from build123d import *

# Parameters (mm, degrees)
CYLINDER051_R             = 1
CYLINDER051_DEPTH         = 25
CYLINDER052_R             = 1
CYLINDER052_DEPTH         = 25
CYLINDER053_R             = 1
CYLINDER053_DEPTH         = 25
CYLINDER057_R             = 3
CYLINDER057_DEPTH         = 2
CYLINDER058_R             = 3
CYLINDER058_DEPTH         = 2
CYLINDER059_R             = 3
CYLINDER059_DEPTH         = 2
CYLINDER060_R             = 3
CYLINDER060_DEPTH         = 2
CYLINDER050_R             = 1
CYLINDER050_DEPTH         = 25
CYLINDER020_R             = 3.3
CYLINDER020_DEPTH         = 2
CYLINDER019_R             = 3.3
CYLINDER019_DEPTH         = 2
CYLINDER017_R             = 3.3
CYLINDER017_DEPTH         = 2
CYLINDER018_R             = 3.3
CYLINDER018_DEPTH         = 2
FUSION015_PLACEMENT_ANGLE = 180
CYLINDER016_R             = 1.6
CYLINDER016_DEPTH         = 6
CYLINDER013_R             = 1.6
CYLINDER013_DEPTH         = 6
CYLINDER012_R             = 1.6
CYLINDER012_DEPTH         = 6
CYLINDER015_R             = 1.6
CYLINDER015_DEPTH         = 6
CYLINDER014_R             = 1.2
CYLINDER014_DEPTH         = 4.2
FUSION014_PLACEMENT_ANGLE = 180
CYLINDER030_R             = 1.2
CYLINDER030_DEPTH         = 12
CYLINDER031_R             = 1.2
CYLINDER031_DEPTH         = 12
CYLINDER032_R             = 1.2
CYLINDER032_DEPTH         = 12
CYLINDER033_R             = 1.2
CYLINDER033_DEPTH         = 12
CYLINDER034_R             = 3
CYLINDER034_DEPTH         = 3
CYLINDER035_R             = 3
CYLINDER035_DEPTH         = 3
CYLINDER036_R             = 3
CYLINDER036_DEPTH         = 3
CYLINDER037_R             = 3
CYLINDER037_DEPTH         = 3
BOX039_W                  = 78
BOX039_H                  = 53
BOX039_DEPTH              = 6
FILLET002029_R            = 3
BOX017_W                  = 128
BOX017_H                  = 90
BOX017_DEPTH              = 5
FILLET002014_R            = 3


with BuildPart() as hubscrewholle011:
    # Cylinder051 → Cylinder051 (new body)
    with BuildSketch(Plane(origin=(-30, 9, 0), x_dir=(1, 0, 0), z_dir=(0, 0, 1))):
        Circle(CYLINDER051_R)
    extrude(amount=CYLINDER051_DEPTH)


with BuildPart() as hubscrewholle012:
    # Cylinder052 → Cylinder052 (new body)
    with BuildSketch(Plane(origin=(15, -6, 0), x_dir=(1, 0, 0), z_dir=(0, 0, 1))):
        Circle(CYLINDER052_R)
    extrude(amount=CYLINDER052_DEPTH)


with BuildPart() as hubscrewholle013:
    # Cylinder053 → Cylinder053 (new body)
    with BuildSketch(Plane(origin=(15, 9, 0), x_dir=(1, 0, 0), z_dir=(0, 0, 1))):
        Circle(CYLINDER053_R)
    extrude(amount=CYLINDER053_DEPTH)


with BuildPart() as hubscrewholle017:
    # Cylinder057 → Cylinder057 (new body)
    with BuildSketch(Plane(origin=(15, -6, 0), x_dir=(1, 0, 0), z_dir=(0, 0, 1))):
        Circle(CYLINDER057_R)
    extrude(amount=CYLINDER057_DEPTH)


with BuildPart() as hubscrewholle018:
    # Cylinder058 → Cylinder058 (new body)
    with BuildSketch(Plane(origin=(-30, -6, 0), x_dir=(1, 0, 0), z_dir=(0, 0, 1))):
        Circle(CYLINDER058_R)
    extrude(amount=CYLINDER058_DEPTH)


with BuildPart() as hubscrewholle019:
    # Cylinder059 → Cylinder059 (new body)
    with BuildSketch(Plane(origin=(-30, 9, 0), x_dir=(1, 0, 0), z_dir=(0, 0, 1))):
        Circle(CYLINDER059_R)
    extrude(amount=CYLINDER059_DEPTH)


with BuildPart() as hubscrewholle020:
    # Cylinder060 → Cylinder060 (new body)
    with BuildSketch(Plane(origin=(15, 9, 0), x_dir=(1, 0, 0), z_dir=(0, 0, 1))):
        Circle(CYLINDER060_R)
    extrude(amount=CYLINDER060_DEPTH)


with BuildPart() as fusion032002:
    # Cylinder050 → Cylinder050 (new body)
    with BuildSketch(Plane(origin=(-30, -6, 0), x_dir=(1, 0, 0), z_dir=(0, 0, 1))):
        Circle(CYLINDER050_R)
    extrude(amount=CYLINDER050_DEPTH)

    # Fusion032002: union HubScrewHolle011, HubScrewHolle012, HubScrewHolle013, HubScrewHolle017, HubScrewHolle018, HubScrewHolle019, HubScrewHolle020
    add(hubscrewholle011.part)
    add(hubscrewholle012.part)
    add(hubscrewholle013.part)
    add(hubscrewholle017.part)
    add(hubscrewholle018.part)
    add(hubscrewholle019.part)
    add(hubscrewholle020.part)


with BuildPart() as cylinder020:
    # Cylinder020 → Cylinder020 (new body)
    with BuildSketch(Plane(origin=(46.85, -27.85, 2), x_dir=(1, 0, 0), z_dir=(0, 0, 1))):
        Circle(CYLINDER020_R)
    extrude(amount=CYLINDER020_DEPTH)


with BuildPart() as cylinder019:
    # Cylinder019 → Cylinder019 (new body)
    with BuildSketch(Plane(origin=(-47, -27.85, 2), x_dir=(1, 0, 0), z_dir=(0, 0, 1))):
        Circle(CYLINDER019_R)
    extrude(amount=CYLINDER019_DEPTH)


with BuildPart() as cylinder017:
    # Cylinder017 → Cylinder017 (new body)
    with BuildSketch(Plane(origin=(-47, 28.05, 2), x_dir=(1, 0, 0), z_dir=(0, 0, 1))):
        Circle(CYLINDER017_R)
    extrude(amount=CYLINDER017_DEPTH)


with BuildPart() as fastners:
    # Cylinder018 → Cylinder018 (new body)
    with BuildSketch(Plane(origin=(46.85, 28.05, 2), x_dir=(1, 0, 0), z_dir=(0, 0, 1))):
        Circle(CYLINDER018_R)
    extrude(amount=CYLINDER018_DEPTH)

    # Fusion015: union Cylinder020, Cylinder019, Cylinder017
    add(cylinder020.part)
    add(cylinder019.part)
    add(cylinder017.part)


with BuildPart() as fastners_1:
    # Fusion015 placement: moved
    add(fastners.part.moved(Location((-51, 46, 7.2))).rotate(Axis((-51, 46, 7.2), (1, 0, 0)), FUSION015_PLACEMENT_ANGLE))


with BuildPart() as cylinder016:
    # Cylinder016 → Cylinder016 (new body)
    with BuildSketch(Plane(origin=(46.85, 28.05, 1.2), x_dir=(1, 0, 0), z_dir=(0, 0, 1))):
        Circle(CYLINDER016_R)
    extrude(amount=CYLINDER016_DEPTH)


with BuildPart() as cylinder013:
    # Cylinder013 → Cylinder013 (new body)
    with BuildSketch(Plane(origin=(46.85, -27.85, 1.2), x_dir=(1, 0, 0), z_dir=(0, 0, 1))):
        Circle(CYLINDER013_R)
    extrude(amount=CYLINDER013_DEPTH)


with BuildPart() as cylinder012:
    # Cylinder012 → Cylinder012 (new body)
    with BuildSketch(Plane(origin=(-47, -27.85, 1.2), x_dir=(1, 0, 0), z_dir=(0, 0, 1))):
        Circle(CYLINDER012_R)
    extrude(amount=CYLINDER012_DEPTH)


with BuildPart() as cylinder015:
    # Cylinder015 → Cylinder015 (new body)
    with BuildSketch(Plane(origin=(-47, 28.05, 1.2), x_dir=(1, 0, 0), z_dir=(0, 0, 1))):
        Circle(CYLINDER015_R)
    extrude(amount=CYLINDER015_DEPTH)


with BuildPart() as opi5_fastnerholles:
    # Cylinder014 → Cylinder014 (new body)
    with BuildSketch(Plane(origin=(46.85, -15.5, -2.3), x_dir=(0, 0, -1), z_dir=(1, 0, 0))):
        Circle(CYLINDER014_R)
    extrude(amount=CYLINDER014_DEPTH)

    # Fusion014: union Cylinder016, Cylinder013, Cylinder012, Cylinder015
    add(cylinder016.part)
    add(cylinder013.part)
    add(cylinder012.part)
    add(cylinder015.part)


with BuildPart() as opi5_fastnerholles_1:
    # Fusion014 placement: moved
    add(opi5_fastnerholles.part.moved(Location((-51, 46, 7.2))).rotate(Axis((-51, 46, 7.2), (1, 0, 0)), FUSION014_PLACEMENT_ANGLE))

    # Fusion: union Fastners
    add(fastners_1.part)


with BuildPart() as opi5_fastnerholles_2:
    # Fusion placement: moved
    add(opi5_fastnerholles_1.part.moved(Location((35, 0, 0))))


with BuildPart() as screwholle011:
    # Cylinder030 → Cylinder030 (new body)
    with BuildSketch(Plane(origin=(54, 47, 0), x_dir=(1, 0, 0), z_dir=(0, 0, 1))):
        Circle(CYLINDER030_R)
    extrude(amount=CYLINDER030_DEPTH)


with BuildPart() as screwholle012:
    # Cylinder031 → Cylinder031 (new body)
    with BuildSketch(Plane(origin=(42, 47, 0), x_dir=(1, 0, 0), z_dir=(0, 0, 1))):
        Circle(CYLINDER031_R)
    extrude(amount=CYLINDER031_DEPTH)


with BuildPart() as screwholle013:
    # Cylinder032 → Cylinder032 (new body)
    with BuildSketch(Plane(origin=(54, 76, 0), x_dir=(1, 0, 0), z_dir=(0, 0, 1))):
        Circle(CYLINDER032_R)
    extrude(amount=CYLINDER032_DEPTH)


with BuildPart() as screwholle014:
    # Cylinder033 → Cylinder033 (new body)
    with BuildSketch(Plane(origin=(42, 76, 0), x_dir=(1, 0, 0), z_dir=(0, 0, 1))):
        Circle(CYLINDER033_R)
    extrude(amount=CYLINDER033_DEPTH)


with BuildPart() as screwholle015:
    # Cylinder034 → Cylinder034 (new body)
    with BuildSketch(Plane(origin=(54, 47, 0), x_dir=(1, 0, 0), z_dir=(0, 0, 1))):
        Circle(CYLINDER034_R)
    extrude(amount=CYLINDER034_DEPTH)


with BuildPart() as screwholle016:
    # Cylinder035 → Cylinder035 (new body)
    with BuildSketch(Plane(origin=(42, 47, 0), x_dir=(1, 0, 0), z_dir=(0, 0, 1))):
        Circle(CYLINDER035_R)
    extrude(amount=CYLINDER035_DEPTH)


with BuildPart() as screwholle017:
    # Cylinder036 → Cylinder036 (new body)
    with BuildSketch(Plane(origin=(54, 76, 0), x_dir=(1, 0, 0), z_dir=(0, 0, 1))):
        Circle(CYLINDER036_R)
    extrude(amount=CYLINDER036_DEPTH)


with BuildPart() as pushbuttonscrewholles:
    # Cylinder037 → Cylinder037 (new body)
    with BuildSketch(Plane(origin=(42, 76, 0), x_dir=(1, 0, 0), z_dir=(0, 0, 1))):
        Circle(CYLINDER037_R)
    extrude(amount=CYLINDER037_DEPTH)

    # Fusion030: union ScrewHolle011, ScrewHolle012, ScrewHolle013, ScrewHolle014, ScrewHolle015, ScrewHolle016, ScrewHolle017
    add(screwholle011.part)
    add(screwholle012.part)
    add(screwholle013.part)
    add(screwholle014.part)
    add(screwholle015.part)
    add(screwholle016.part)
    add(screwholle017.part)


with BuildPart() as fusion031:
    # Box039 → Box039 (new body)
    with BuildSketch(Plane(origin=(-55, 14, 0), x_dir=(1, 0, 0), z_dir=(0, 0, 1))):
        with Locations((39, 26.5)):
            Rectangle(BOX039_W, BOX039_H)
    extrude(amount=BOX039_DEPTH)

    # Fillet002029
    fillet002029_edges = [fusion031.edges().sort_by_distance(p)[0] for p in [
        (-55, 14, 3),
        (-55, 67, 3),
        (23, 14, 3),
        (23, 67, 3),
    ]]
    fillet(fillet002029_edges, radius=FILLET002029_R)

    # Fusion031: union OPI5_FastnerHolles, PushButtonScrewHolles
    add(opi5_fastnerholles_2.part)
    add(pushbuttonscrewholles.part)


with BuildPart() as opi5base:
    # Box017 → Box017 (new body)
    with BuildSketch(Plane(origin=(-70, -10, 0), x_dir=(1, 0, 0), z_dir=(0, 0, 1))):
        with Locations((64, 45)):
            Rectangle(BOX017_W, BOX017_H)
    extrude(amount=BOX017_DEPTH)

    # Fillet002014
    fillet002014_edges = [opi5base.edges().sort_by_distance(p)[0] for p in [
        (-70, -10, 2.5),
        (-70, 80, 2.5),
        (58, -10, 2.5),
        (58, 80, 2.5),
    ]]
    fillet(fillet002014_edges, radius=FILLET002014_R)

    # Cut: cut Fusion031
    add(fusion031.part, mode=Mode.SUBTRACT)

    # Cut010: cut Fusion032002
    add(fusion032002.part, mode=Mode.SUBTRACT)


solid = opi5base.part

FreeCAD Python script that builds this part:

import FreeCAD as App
import Part
import Sketcher
from FreeCAD import Vector
Q = App.Units.Quantity


def edges_at(feature, points):
    """Names of the edges that pass closest to the given points."""
    edges = feature.Shape.Edges
    near = lambda p: min(range(len(edges)), key=lambda i: edges[i].distToShape(Part.Vertex(*p))[0])
    return sorted({f"Edge{near(p) + 1}" for p in points})


def add_polygon(sketch, points):
    """Adds a closed chain of lines whose ends are joined by coincident constraints."""
    first, n = sketch.GeometryCount, len(points)
    for a, b in zip(points, points[1:] + points[:1]):
        sketch.addGeometry(Part.LineSegment(App.Vector(*a, 0), App.Vector(*b, 0)), False)
    for i in range(n):
        sketch.addConstraint(Sketcher.Constraint("Coincident", first + i, 2, first + (i + 1) % n, 1))

doc = App.newDocument("Part")
body = doc.addObject("PartDesign::Body", "Body")

sketch1 = doc.addObject("Sketcher::SketchObject", "Sketch")
body.addObject(sketch1)
sketch1.AttachmentSupport = (doc.XY_Plane, [""])
sketch1.MapMode = "FlatFace"
sketch1.addGeometry(Part.Circle(Vector(-30, 9, 0), Vector(0, 0, 1), 1), False)
sketch1.addConstraint(Sketcher.Constraint("Diameter", 0, Q("2 mm")))
sketch1.addConstraint(Sketcher.Constraint("DistanceX", 0, 3, -1, 1, Q("30 mm")))
sketch1.addConstraint(Sketcher.Constraint("DistanceY", -1, 1, 0, 3, Q("9 mm")))
pad1 = doc.addObject("PartDesign::Pad", "Pad")
body.addObject(pad1)
pad1.Profile = sketch1
pad1.Length = 25
body2 = doc.addObject("PartDesign::Body", "Body001")

sketch2 = doc.addObject("Sketcher::SketchObject", "Sketch001")
body2.addObject(sketch2)
sketch2.AttachmentSupport = (doc.getObject("XY_Plane001"), [""])
sketch2.MapMode = "FlatFace"
sketch2.addGeometry(Part.Circle(Vector(15, -6, 0), Vector(0, 0, 1), 1), False)
sketch2.addConstraint(Sketcher.Constraint("Diameter", 0, Q("2 mm")))
sketch2.addConstraint(Sketcher.Constraint("DistanceX", -1, 1, 0, 3, Q("15 mm")))
sketch2.addConstraint(Sketcher.Constraint("DistanceY", 0, 3, -1, 1, Q("6 mm")))
pad2 = doc.addObject("PartDesign::Pad", "Pad001")
body2.addObject(pad2)
pad2.Profile = sketch2
pad2.Length = 25
body3 = doc.addObject("PartDesign::Body", "Body002")

sketch3 = doc.addObject("Sketcher::SketchObject", "Sketch002")
body3.addObject(sketch3)
sketch3.AttachmentSupport = (doc.getObject("XY_Plane002"), [""])
sketch3.MapMode = "FlatFace"
sketch3.addGeometry(Part.Circle(Vector(15, 9, 0), Vector(0, 0, 1), 1), False)
sketch3.addConstraint(Sketcher.Constraint("Diameter", 0, Q("2 mm")))
sketch3.addConstraint(Sketcher.Constraint("DistanceX", -1, 1, 0, 3, Q("15 mm")))
sketch3.addConstraint(Sketcher.Constraint("DistanceY", -1, 1, 0, 3, Q("9 mm")))
pad3 = doc.addObject("PartDesign::Pad", "Pad002")
body3.addObject(pad3)
pad3.Profile = sketch3
pad3.Length = 25
body4 = doc.addObject("PartDesign::Body", "Body003")

sketch4 = doc.addObject("Sketcher::SketchObject", "Sketch003")
body4.addObject(sketch4)
sketch4.AttachmentSupport = (doc.getObject("XY_Plane003"), [""])
sketch4.MapMode = "FlatFace"
sketch4.addGeometry(Part.Circle(Vector(15, -6, 0), Vector(0, 0, 1), 3), False)
sketch4.addConstraint(Sketcher.Constraint("Diameter", 0, Q("6 mm")))
sketch4.addConstraint(Sketcher.Constraint("DistanceX", -1, 1, 0, 3, Q("15 mm")))
sketch4.addConstraint(Sketcher.Constraint("DistanceY", 0, 3, -1, 1, Q("6 mm")))
pad4 = doc.addObject("PartDesign::Pad", "Pad003")
body4.addObject(pad4)
pad4.Profile = sketch4
pad4.Length = 2
body5 = doc.addObject("PartDesign::Body", "Body004")

sketch5 = doc.addObject("Sketcher::SketchObject", "Sketch004")
body5.addObject(sketch5)
sketch5.AttachmentSupport = (doc.getObject("XY_Plane004"), [""])
sketch5.MapMode = "FlatFace"
sketch5.addGeometry(Part.Circle(Vector(-30, -6, 0), Vector(0, 0, 1), 3), False)
sketch5.addConstraint(Sketcher.Constraint("Diameter", 0, Q("6 mm")))
sketch5.addConstraint(Sketcher.Constraint("DistanceX", 0, 3, -1, 1, Q("30 mm")))
sketch5.addConstraint(Sketcher.Constraint("DistanceY", 0, 3, -1, 1, Q("6 mm")))
pad5 = doc.addObject("PartDesign::Pad", "Pad004")
body5.addObject(pad5)
pad5.Profile = sketch5
pad5.Length = 2
body6 = doc.addObject("PartDesign::Body", "Body005")

sketch6 = doc.addObject("Sketcher::SketchObject", "Sketch005")
body6.addObject(sketch6)
sketch6.AttachmentSupport = (doc.getObject("XY_Plane005"), [""])
sketch6.MapMode = "FlatFace"
sketch6.addGeometry(Part.Circle(Vector(-30, 9, 0), Vector(0, 0, 1), 3), False)
sketch6.addConstraint(Sketcher.Constraint("Diameter", 0, Q("6 mm")))
sketch6.addConstraint(Sketcher.Constraint("DistanceX", 0, 3, -1, 1, Q("30 mm")))
sketch6.addConstraint(Sketcher.Constraint("DistanceY", -1, 1, 0, 3, Q("9 mm")))
pad6 = doc.addObject("PartDesign::Pad", "Pad005")
body6.addObject(pad6)
pad6.Profile = sketch6
pad6.Length = 2
body7 = doc.addObject("PartDesign::Body", "Body006")

sketch7 = doc.addObject("Sketcher::SketchObject", "Sketch006")
body7.addObject(sketch7)
sketch7.AttachmentSupport = (doc.getObject("XY_Plane006"), [""])
sketch7.MapMode = "FlatFace"
sketch7.addGeometry(Part.Circle(Vector(15, 9, 0), Vector(0, 0, 1), 3), False)
sketch7.addConstraint(Sketcher.Constraint("Diameter", 0, Q("6 mm")))
sketch7.addConstraint(Sketcher.Constraint("DistanceX", -1, 1, 0, 3, Q("15 mm")))
sketch7.addConstraint(Sketcher.Constraint("DistanceY", -1, 1, 0, 3, Q("9 mm")))
pad7 = doc.addObject("PartDesign::Pad", "Pad006")
body7.addObject(pad7)
pad7.Profile = sketch7
pad7.Length = 2
body8 = doc.addObject("PartDesign::Body", "Body007")
body8.AllowCompound = True

sketch8 = doc.addObject("Sketcher::SketchObject", "Sketch007")
body8.addObject(sketch8)
sketch8.AttachmentSupport = (doc.getObject("XY_Plane007"), [""])
sketch8.MapMode = "FlatFace"
sketch8.addGeometry(Part.Circle(Vector(-30, -6, 0), Vector(0, 0, 1), 1), False)
sketch8.addConstraint(Sketcher.Constraint("Diameter", 0, Q("2 mm")))
sketch8.addConstraint(Sketcher.Constraint("DistanceX", 0, 3, -1, 1, Q("30 mm")))
sketch8.addConstraint(Sketcher.Constraint("DistanceY", 0, 3, -1, 1, Q("6 mm")))
pad8 = doc.addObject("PartDesign::Pad", "Pad007")
body8.addObject(pad8)
pad8.Profile = sketch8
pad8.Length = 25
doc.recompute()

boolean = doc.addObject("PartDesign::Boolean", "Boolean")
body8.addObject(boolean)
boolean.Type = "Fuse"
boolean.addObjects([body])
doc.recompute()

boolean2 = doc.addObject("PartDesign::Boolean", "Boolean001")
body8.addObject(boolean2)
boolean2.Type = "Fuse"
boolean2.addObjects([body2])
doc.recompute()

boolean3 = doc.addObject("PartDesign::Boolean", "Boolean002")
body8.addObject(boolean3)
boolean3.Type = "Fuse"
boolean3.addObjects([body3])
doc.recompute()

boolean4 = doc.addObject("PartDesign::Boolean", "Boolean003")
body8.addObject(boolean4)
boolean4.Type = "Fuse"
boolean4.addObjects([body4])
doc.recompute()

boolean5 = doc.addObject("PartDesign::Boolean", "Boolean004")
body8.addObject(boolean5)
boolean5.Type = "Fuse"
boolean5.addObjects([body5])
doc.recompute()

boolean6 = doc.addObject("PartDesign::Boolean", "Boolean005")
body8.addObject(boolean6)
boolean6.Type = "Fuse"
boolean6.addObjects([body6])
doc.recompute()

boolean7 = doc.addObject("PartDesign::Boolean", "Boolean006")
body8.addObject(boolean7)
boolean7.Type = "Fuse"
boolean7.addObjects([body7])
body9 = doc.addObject("PartDesign::Body", "Body008")

sketch9 = doc.addObject("Sketcher::SketchObject", "Sketch008")
body9.addObject(sketch9)
sketch9.AttachmentSupport = (doc.getObject("XY_Plane008"), [""])
sketch9.MapMode = "FlatFace"
sketch9.AttachmentOffset = App.Placement(Vector(0, 0, 2), App.Rotation())
sketch9.addGeometry(Part.Circle(Vector(46.9, -27.9, 0), Vector(0, 0, 1), 3.3), False)
sketch9.addConstraint(Sketcher.Constraint("Diameter", 0, Q("6.6 mm")))
sketch9.addConstraint(Sketcher.Constraint("DistanceX", -1, 1, 0, 3, Q("46.85 mm")))
sketch9.addConstraint(Sketcher.Constraint("DistanceY", 0, 3, -1, 1, Q("27.85 mm")))
pad9 = doc.addObject("PartDesign::Pad", "Pad008")
body9.addObject(pad9)
pad9.Profile = sketch9
pad9.Length = 2
body10 = doc.addObject("PartDesign::Body", "Body009")

sketch10 = doc.addObject("Sketcher::SketchObject", "Sketch009")
body10.addObject(sketch10)
sketch10.AttachmentSupport = (doc.getObject("XY_Plane009"), [""])
sketch10.MapMode = "FlatFace"
sketch10.AttachmentOffset = App.Placement(Vector(0, 0, 2), App.Rotation())
sketch10.addGeometry(Part.Circle(Vector(-47, -27.9, 0), Vector(0, 0, 1), 3.3), False)
sketch10.addConstraint(Sketcher.Constraint("Diameter", 0, Q("6.6 mm")))
sketch10.addConstraint(Sketcher.Constraint("DistanceX", 0, 3, -1, 1, Q("47 mm")))
sketch10.addConstraint(Sketcher.Constraint("DistanceY", 0, 3, -1, 1, Q("27.85 mm")))
pad10 = doc.addObject("PartDesign::Pad", "Pad009")
body10.addObject(pad10)
pad10.Profile = sketch10
pad10.Length = 2
body11 = doc.addObject("PartDesign::Body", "Body010")

sketch11 = doc.addObject("Sketcher::SketchObject", "Sketch010")
body11.addObject(sketch11)
sketch11.AttachmentSupport = (doc.getObject("XY_Plane010"), [""])
sketch11.MapMode = "FlatFace"
sketch11.AttachmentOffset = App.Placement(Vector(0, 0, 2), App.Rotation())
sketch11.addGeometry(Part.Circle(Vector(-47, 28.1, 0), Vector(0, 0, 1), 3.3), False)
sketch11.addConstraint(Sketcher.Constraint("Diameter", 0, Q("6.6 mm")))
sketch11.addConstraint(Sketcher.Constraint("DistanceX", 0, 3, -1, 1, Q("47 mm")))
sketch11.addConstraint(Sketcher.Constraint("DistanceY", -1, 1, 0, 3, Q("28.05 mm")))
pad11 = doc.addObject("PartDesign::Pad", "Pad010")
body11.addObject(pad11)
pad11.Profile = sketch11
pad11.Length = 2
body12 = doc.addObject("PartDesign::Body", "Body011")
body12.AllowCompound = True

sketch12 = doc.addObject("Sketcher::SketchObject", "Sketch011")
body12.addObject(sketch12)
sketch12.AttachmentSupport = (doc.getObject("XY_Plane011"), [""])
sketch12.MapMode = "FlatFace"
sketch12.AttachmentOffset = App.Placement(Vector(0, 0, 2), App.Rotation())
sketch12.addGeometry(Part.Circle(Vector(46.9, 28.1, 0), Vector(0, 0, 1), 3.3), False)
sketch12.addConstraint(Sketcher.Constraint("Diameter", 0, Q("6.6 mm")))
sketch12.addConstraint(Sketcher.Constraint("DistanceX", -1, 1, 0, 3, Q("46.85 mm")))
sketch12.addConstraint(Sketcher.Constraint("DistanceY", -1, 1, 0, 3, Q("28.05 mm")))
pad12 = doc.addObject("PartDesign::Pad", "Pad011")
body12.addObject(pad12)
pad12.Profile = sketch12
pad12.Length = 2
doc.recompute()

boolean8 = doc.addObject("PartDesign::Boolean", "Boolean007")
body12.addObject(boolean8)
boolean8.Type = "Fuse"
boolean8.addObjects([body9])
doc.recompute()

boolean9 = doc.addObject("PartDesign::Boolean", "Boolean008")
body12.addObject(boolean9)
boolean9.Type = "Fuse"
boolean9.addObjects([body10])
doc.recompute()

boolean10 = doc.addObject("PartDesign::Boolean", "Boolean009")
body12.addObject(boolean10)
boolean10.Type = "Fuse"
boolean10.addObjects([body11])
body13 = doc.addObject("PartDesign::Body", "Body012")
body13.AllowCompound = True
doc.recompute()

body12.Placement = App.Placement(Vector(-51, 46, 7.2), App.Rotation(Vector(1, 0, 0), 180))
boolean11 = doc.addObject("PartDesign::Boolean", "Boolean010")
body13.addObject(boolean11)
boolean11.Type = "Fuse"
boolean11.addObjects([body12])
body14 = doc.addObject("PartDesign::Body", "Body013")

sketch13 = doc.addObject("Sketcher::SketchObject", "Sketch012")
body14.addObject(sketch13)
sketch13.AttachmentSupport = (doc.getObject("XY_Plane013"), [""])
sketch13.MapMode = "FlatFace"
sketch13.AttachmentOffset = App.Placement(Vector(0, 0, 1.2), App.Rotation())
sketch13.addGeometry(Part.Circle(Vector(46.9, 28.1, 0), Vector(0, 0, 1), 1.6), False)
sketch13.addConstraint(Sketcher.Constraint("Diameter", 0, Q("3.2 mm")))
sketch13.addConstraint(Sketcher.Constraint("DistanceX", -1, 1, 0, 3, Q("46.85 mm")))
sketch13.addConstraint(Sketcher.Constraint("DistanceY", -1, 1, 0, 3, Q("28.05 mm")))
pad13 = doc.addObject("PartDesign::Pad", "Pad012")
body14.addObject(pad13)
pad13.Profile = sketch13
pad13.Length = 6
body15 = doc.addObject("PartDesign::Body", "Body014")

sketch14 = doc.addObject("Sketcher::SketchObject", "Sketch013")
body15.addObject(sketch14)
sketch14.AttachmentSupport = (doc.getObject("XY_Plane014"), [""])
sketch14.MapMode = "FlatFace"
sketch14.AttachmentOffset = App.Placement(Vector(0, 0, 1.2), App.Rotation())
sketch14.addGeometry(Part.Circle(Vector(46.9, -27.9, 0), Vector(0, 0, 1), 1.6), False)
sketch14.addConstraint(Sketcher.Constraint("Diameter", 0, Q("3.2 mm")))
sketch14.addConstraint(Sketcher.Constraint("DistanceX", -1, 1, 0, 3, Q("46.85 mm")))
sketch14.addConstraint(Sketcher.Constraint("DistanceY", 0, 3, -1, 1, Q("27.85 mm")))
pad14 = doc.addObject("PartDesign::Pad", "Pad013")
body15.addObject(pad14)
pad14.Profile = sketch14
pad14.Length = 6
body16 = doc.addObject("PartDesign::Body", "Body015")

sketch15 = doc.addObject("Sketcher::SketchObject", "Sketch014")
body16.addObject(sketch15)
sketch15.AttachmentSupport = (doc.getObject("XY_Plane015"), [""])
sketch15.MapMode = "FlatFace"
sketch15.AttachmentOffset = App.Placement(Vector(0, 0, 1.2), App.Rotation())
sketch15.addGeometry(Part.Circle(Vector(-47, -27.9, 0), Vector(0, 0, 1), 1.6), False)
sketch15.addConstraint(Sketcher.Constraint("Diameter", 0, Q("3.2 mm")))
sketch15.addConstraint(Sketcher.Constraint("DistanceX", 0, 3, -1, 1, Q("47 mm")))
sketch15.addConstraint(Sketcher.Constraint("DistanceY", 0, 3, -1, 1, Q("27.85 mm")))
pad15 = doc.addObject("PartDesign::Pad", "Pad014")
body16.addObject(pad15)
pad15.Profile = sketch15
pad15.Length = 6
body17 = doc.addObject("PartDesign::Body", "Body016")

sketch16 = doc.addObject("Sketcher::SketchObject", "Sketch015")
body17.addObject(sketch16)
sketch16.AttachmentSupport = (doc.getObject("XY_Plane016"), [""])
sketch16.MapMode = "FlatFace"
sketch16.AttachmentOffset = App.Placement(Vector(0, 0, 1.2), App.Rotation())
sketch16.addGeometry(Part.Circle(Vector(-47, 28.1, 0), Vector(0, 0, 1), 1.6), False)
sketch16.addConstraint(Sketcher.Constraint("Diameter", 0, Q("3.2 mm")))
sketch16.addConstraint(Sketcher.Constraint("DistanceX", 0, 3, -1, 1, Q("47 mm")))
sketch16.addConstraint(Sketcher.Constraint("DistanceY", -1, 1, 0, 3, Q("28.05 mm")))
pad16 = doc.addObject("PartDesign::Pad", "Pad015")
body17.addObject(pad16)
pad16.Profile = sketch16
pad16.Length = 6
body18 = doc.addObject("PartDesign::Body", "Body017")
body18.AllowCompound = True

sketch17 = doc.addObject("Sketcher::SketchObject", "Sketch016")
body18.addObject(sketch17)
sketch17.AttachmentSupport = (doc.getObject("YZ_Plane017"), [""])
sketch17.MapMode = "FlatFace"
sketch17.AttachmentOffset = App.Placement(Vector(0, 0, 46.85), App.Rotation())
sketch17.addGeometry(Part.Circle(Vector(-15.5, -2.3, 0), Vector(0, 0, 1), 1.2), False)
sketch17.addConstraint(Sketcher.Constraint("Diameter", 0, Q("2.4 mm")))
sketch17.addConstraint(Sketcher.Constraint("DistanceX", 0, 3, -1, 1, Q("15.5 mm")))
sketch17.addConstraint(Sketcher.Constraint("DistanceY", 0, 3, -1, 1, Q("2.3 mm")))
pad17 = doc.addObject("PartDesign::Pad", "Pad016")
body18.addObject(pad17)
pad17.Profile = sketch17
pad17.Length = 4.2
doc.recompute()

boolean12 = doc.addObject("PartDesign::Boolean", "Boolean011")
body18.addObject(boolean12)
boolean12.Type = "Fuse"
boolean12.addObjects([body14])
doc.recompute()

boolean13 = doc.addObject("PartDesign::Boolean", "Boolean012")
body18.addObject(boolean13)
boolean13.Type = "Fuse"
boolean13.addObjects([body15])
doc.recompute()

boolean14 = doc.addObject("PartDesign::Boolean", "Boolean013")
body18.addObject(boolean14)
boolean14.Type = "Fuse"
boolean14.addObjects([body16])
doc.recompute()

boolean15 = doc.addObject("PartDesign::Boolean", "Boolean014")
body18.addObject(boolean15)
boolean15.Type = "Fuse"
boolean15.addObjects([body17])
body19 = doc.addObject("PartDesign::Body", "Body018")
body19.AllowCompound = True
doc.recompute()

body18.Placement = App.Placement(Vector(-51, 46, 7.2), App.Rotation(Vector(1, 0, 0), 180))
boolean16 = doc.addObject("PartDesign::Boolean", "Boolean015")
body19.addObject(boolean16)
boolean16.Type = "Fuse"
boolean16.addObjects([body18])
doc.recompute()

boolean17 = doc.addObject("PartDesign::Boolean", "Boolean016")
body19.addObject(boolean17)
boolean17.Type = "Fuse"
boolean17.addObjects([body13])
body20 = doc.addObject("PartDesign::Body", "Body019")
body20.AllowCompound = True
doc.recompute()

body19.Placement = App.Placement(Vector(35, 0, 0), App.Rotation(Vector(0, 0, 1), 0))
boolean18 = doc.addObject("PartDesign::Boolean", "Boolean017")
body20.addObject(boolean18)
boolean18.Type = "Fuse"
boolean18.addObjects([body19])
body21 = doc.addObject("PartDesign::Body", "Body020")

sketch18 = doc.addObject("Sketcher::SketchObject", "Sketch017")
body21.addObject(sketch18)
sketch18.AttachmentSupport = (doc.getObject("XY_Plane020"), [""])
sketch18.MapMode = "FlatFace"
sketch18.addGeometry(Part.Circle(Vector(54, 47, 0), Vector(0, 0, 1), 1.2), False)
sketch18.addConstraint(Sketcher.Constraint("Diameter", 0, Q("2.4 mm")))
sketch18.addConstraint(Sketcher.Constraint("DistanceX", -1, 1, 0, 3, Q("54 mm")))
sketch18.addConstraint(Sketcher.Constraint("DistanceY", -1, 1, 0, 3, Q("47 mm")))
pad18 = doc.addObject("PartDesign::Pad", "Pad017")
body21.addObject(pad18)
pad18.Profile = sketch18
pad18.Length = 12
body22 = doc.addObject("PartDesign::Body", "Body021")

sketch19 = doc.addObject("Sketcher::SketchObject", "Sketch018")
body22.addObject(sketch19)
sketch19.AttachmentSupport = (doc.getObject("XY_Plane021"), [""])
sketch19.MapMode = "FlatFace"
sketch19.addGeometry(Part.Circle(Vector(42, 47, 0), Vector(0, 0, 1), 1.2), False)
sketch19.addConstraint(Sketcher.Constraint("Diameter", 0, Q("2.4 mm")))
sketch19.addConstraint(Sketcher.Constraint("DistanceX", -1, 1, 0, 3, Q("42 mm")))
sketch19.addConstraint(Sketcher.Constraint("DistanceY", -1, 1, 0, 3, Q("47 mm")))
pad19 = doc.addObject("PartDesign::Pad", "Pad018")
body22.addObject(pad19)
pad19.Profile = sketch19
pad19.Length = 12
body23 = doc.addObject("PartDesign::Body", "Body022")

sketch20 = doc.addObject("Sketcher::SketchObject", "Sketch019")
body23.addObject(sketch20)
sketch20.AttachmentSupport = (doc.getObject("XY_Plane022"), [""])
sketch20.MapMode = "FlatFace"
sketch20.addGeometry(Part.Circle(Vector(54, 76, 0), Vector(0, 0, 1), 1.2), False)
sketch20.addConstraint(Sketcher.Constraint("Diameter", 0, Q("2.4 mm")))
sketch20.addConstraint(Sketcher.Constraint("DistanceX", -1, 1, 0, 3, Q("54 mm")))
sketch20.addConstraint(Sketcher.Constraint("DistanceY", -1, 1, 0, 3, Q("76 mm")))
pad20 = doc.addObject("PartDesign::Pad", "Pad019")
body23.addObject(pad20)
pad20.Profile = sketch20
pad20.Length = 12
body24 = doc.addObject("PartDesign::Body", "Body023")

sketch21 = doc.addObject("Sketcher::SketchObject", "Sketch020")
body24.addObject(sketch21)
sketch21.AttachmentSupport = (doc.getObject("XY_Plane023"), [""])
sketch21.MapMode = "FlatFace"
sketch21.addGeometry(Part.Circle(Vector(42, 76, 0), Vector(0, 0, 1), 1.2), False)
sketch21.addConstraint(Sketcher.Constraint("Diameter", 0, Q("2.4 mm")))
sketch21.addConstraint(Sketcher.Constraint("DistanceX", -1, 1, 0, 3, Q("42 mm")))
sketch21.addConstraint(Sketcher.Constraint("DistanceY", -1, 1, 0, 3, Q("76 mm")))
pad21 = doc.addObject("PartDesign::Pad", "Pad020")
body24.addObject(pad21)
pad21.Profile = sketch21
pad21.Length = 12
body25 = doc.addObject("PartDesign::Body", "Body024")

sketch22 = doc.addObject("Sketcher::SketchObject", "Sketch021")
body25.addObject(sketch22)
sketch22.AttachmentSupport = (doc.getObject("XY_Plane024"), [""])
sketch22.MapMode = "FlatFace"
sketch22.addGeometry(Part.Circle(Vector(54, 47, 0), Vector(0, 0, 1), 3), False)
sketch22.addConstraint(Sketcher.Constraint("Diameter", 0, Q("6 mm")))
sketch22.addConstraint(Sketcher.Constraint("DistanceX", -1, 1, 0, 3, Q("54 mm")))
sketch22.addConstraint(Sketcher.Constraint("DistanceY", -1, 1, 0, 3, Q("47 mm")))
pad22 = doc.addObject("PartDesign::Pad", "Pad021")
body25.addObject(pad22)
pad22.Profile = sketch22
pad22.Length = 3
body26 = doc.addObject("PartDesign::Body", "Body025")

sketch23 = doc.addObject("Sketcher::SketchObject", "Sketch022")
body26.addObject(sketch23)
sketch23.AttachmentSupport = (doc.getObject("XY_Plane025"), [""])
sketch23.MapMode = "FlatFace"
sketch23.addGeometry(Part.Circle(Vector(42, 47, 0), Vector(0, 0, 1), 3), False)
sketch23.addConstraint(Sketcher.Constraint("Diameter", 0, Q("6 mm")))
sketch23.addConstraint(Sketcher.Constraint("DistanceX", -1, 1, 0, 3, Q("42 mm")))
sketch23.addConstraint(Sketcher.Constraint("DistanceY", -1, 1, 0, 3, Q("47 mm")))
pad23 = doc.addObject("PartDesign::Pad", "Pad022")
body26.addObject(pad23)
pad23.Profile = sketch23
pad23.Length = 3
body27 = doc.addObject("PartDesign::Body", "Body026")

sketch24 = doc.addObject("Sketcher::SketchObject", "Sketch023")
body27.addObject(sketch24)
sketch24.AttachmentSupport = (doc.getObject("XY_Plane026"), [""])
sketch24.MapMode = "FlatFace"
sketch24.addGeometry(Part.Circle(Vector(54, 76, 0), Vector(0, 0, 1), 3), False)
sketch24.addConstraint(Sketcher.Constraint("Diameter", 0, Q("6 mm")))
sketch24.addConstraint(Sketcher.Constraint("DistanceX", -1, 1, 0, 3, Q("54 mm")))
sketch24.addConstraint(Sketcher.Constraint("DistanceY", -1, 1, 0, 3, Q("76 mm")))
pad24 = doc.addObject("PartDesign::Pad", "Pad023")
body27.addObject(pad24)
pad24.Profile = sketch24
pad24.Length = 3
body28 = doc.addObject("PartDesign::Body", "Body027")
body28.AllowCompound = True

sketch25 = doc.addObject("Sketcher::SketchObject", "Sketch024")
body28.addObject(sketch25)
sketch25.AttachmentSupport = (doc.getObject("XY_Plane027"), [""])
sketch25.MapMode = "FlatFace"
sketch25.addGeometry(Part.Circle(Vector(42, 76, 0), Vector(0, 0, 1), 3), False)
sketch25.addConstraint(Sketcher.Constraint("Diameter", 0, Q("6 mm")))
sketch25.addConstraint(Sketcher.Constraint("DistanceX", -1, 1, 0, 3, Q("42 mm")))
sketch25.addConstraint(Sketcher.Constraint("DistanceY", -1, 1, 0, 3, Q("76 mm")))
pad25 = doc.addObject("PartDesign::Pad", "Pad024")
body28.addObject(pad25)
pad25.Profile = sketch25
pad25.Length = 3
doc.recompute()

boolean19 = doc.addObject("PartDesign::Boolean", "Boolean018")
body28.addObject(boolean19)
boolean19.Type = "Fuse"
boolean19.addObjects([body21])
doc.recompute()

boolean20 = doc.addObject("PartDesign::Boolean", "Boolean019")
body28.addObject(boolean20)
boolean20.Type = "Fuse"
boolean20.addObjects([body22])
doc.recompute()

boolean21 = doc.addObject("PartDesign::Boolean", "Boolean020")
body28.addObject(boolean21)
boolean21.Type = "Fuse"
boolean21.addObjects([body23])
doc.recompute()

boolean22 = doc.addObject("PartDesign::Boolean", "Boolean021")
body28.addObject(boolean22)
boolean22.Type = "Fuse"
boolean22.addObjects([body24])
doc.recompute()

boolean23 = doc.addObject("PartDesign::Boolean", "Boolean022")
body28.addObject(boolean23)
boolean23.Type = "Fuse"
boolean23.addObjects([body25])
doc.recompute()

boolean24 = doc.addObject("PartDesign::Boolean", "Boolean023")
body28.addObject(boolean24)
boolean24.Type = "Fuse"
boolean24.addObjects([body26])
doc.recompute()

boolean25 = doc.addObject("PartDesign::Boolean", "Boolean024")
body28.addObject(boolean25)
boolean25.Type = "Fuse"
boolean25.addObjects([body27])
body29 = doc.addObject("PartDesign::Body", "Body028")
body29.AllowCompound = True

sketch26 = doc.addObject("Sketcher::SketchObject", "Sketch025")
body29.addObject(sketch26)
sketch26.AttachmentSupport = (doc.getObject("XY_Plane028"), [""])
sketch26.MapMode = "FlatFace"
add_polygon(sketch26, [(-55, 67), (-55, 14), (23, 14), (23, 67)])
sketch26.addConstraint(Sketcher.Constraint("Vertical", 0))
sketch26.addConstraint(Sketcher.Constraint("Horizontal", 1))
sketch26.addConstraint(Sketcher.Constraint("Vertical", 2))
sketch26.addConstraint(Sketcher.Constraint("Horizontal", 3))
sketch26.addConstraint(Sketcher.Constraint("DistanceX", 1, 1, 1, 2, Q("78 mm")))
sketch26.addConstraint(Sketcher.Constraint("DistanceY", 0, 2, 0, 1, Q("53 mm")))
sketch26.addConstraint(Sketcher.Constraint("DistanceX", 0, 2, -1, 1, Q("55 mm")))
sketch26.addConstraint(Sketcher.Constraint("DistanceY", -1, 1, 0, 2, Q("14 mm")))
pad26 = doc.addObject("PartDesign::Pad", "Pad025")
body29.addObject(pad26)
pad26.Profile = sketch26
pad26.Length = 6
doc.recompute()

fillet = doc.addObject("PartDesign::Fillet", "Fillet")
body29.addObject(fillet)
fillet.Base = (pad26, edges_at(pad26, [
    (-55, 14, 3),
    (-55, 67, 3),
    (23, 14, 3),
    (23, 67, 3),
]))
fillet.Radius = 3
doc.recompute()

boolean26 = doc.addObject("PartDesign::Boolean", "Boolean025")
body29.addObject(boolean26)
boolean26.Type = "Fuse"
boolean26.addObjects([body20])
doc.recompute()

boolean27 = doc.addObject("PartDesign::Boolean", "Boolean026")
body29.addObject(boolean27)
boolean27.Type = "Fuse"
boolean27.addObjects([body28])
body30 = doc.addObject("PartDesign::Body", "Body029")

sketch27 = doc.addObject("Sketcher::SketchObject", "Sketch026")
body30.addObject(sketch27)
sketch27.AttachmentSupport = (doc.getObject("XY_Plane029"), [""])
sketch27.MapMode = "FlatFace"
add_polygon(sketch27, [(-70, 80), (-70, -10), (58, -10), (58, 80)])
sketch27.addConstraint(Sketcher.Constraint("Vertical", 0))
sketch27.addConstraint(Sketcher.Constraint("Horizontal", 1))
sketch27.addConstraint(Sketcher.Constraint("Vertical", 2))
sketch27.addConstraint(Sketcher.Constraint("Horizontal", 3))
sketch27.addConstraint(Sketcher.Constraint("DistanceX", 1, 1, 1, 2, Q("128 mm")))
sketch27.addConstraint(Sketcher.Constraint("DistanceY", 0, 2, 0, 1, Q("90 mm")))
sketch27.addConstraint(Sketcher.Constraint("DistanceX", 0, 2, -1, 1, Q("70 mm")))
sketch27.addConstraint(Sketcher.Constraint("DistanceY", 0, 2, -1, 1, Q("10 mm")))
pad27 = doc.addObject("PartDesign::Pad", "Pad026")
body30.addObject(pad27)
pad27.Profile = sketch27
pad27.Length = 5
doc.recompute()

fillet2 = doc.addObject("PartDesign::Fillet", "Fillet001")
body30.addObject(fillet2)
fillet2.Base = (pad27, edges_at(pad27, [
    (-70, -10, 2.5),
    (-70, 80, 2.5),
    (58, -10, 2.5),
    (58, 80, 2.5),
]))
fillet2.Radius = 3
doc.recompute()

boolean28 = doc.addObject("PartDesign::Boolean", "Boolean027")
body30.addObject(boolean28)
boolean28.Type = "Cut"
boolean28.addObjects([body29])
doc.recompute()

boolean29 = doc.addObject("PartDesign::Boolean", "Boolean028")
body30.addObject(boolean29)
boolean29.Type = "Cut"
boolean29.addObjects([body8])

doc.recompute()
